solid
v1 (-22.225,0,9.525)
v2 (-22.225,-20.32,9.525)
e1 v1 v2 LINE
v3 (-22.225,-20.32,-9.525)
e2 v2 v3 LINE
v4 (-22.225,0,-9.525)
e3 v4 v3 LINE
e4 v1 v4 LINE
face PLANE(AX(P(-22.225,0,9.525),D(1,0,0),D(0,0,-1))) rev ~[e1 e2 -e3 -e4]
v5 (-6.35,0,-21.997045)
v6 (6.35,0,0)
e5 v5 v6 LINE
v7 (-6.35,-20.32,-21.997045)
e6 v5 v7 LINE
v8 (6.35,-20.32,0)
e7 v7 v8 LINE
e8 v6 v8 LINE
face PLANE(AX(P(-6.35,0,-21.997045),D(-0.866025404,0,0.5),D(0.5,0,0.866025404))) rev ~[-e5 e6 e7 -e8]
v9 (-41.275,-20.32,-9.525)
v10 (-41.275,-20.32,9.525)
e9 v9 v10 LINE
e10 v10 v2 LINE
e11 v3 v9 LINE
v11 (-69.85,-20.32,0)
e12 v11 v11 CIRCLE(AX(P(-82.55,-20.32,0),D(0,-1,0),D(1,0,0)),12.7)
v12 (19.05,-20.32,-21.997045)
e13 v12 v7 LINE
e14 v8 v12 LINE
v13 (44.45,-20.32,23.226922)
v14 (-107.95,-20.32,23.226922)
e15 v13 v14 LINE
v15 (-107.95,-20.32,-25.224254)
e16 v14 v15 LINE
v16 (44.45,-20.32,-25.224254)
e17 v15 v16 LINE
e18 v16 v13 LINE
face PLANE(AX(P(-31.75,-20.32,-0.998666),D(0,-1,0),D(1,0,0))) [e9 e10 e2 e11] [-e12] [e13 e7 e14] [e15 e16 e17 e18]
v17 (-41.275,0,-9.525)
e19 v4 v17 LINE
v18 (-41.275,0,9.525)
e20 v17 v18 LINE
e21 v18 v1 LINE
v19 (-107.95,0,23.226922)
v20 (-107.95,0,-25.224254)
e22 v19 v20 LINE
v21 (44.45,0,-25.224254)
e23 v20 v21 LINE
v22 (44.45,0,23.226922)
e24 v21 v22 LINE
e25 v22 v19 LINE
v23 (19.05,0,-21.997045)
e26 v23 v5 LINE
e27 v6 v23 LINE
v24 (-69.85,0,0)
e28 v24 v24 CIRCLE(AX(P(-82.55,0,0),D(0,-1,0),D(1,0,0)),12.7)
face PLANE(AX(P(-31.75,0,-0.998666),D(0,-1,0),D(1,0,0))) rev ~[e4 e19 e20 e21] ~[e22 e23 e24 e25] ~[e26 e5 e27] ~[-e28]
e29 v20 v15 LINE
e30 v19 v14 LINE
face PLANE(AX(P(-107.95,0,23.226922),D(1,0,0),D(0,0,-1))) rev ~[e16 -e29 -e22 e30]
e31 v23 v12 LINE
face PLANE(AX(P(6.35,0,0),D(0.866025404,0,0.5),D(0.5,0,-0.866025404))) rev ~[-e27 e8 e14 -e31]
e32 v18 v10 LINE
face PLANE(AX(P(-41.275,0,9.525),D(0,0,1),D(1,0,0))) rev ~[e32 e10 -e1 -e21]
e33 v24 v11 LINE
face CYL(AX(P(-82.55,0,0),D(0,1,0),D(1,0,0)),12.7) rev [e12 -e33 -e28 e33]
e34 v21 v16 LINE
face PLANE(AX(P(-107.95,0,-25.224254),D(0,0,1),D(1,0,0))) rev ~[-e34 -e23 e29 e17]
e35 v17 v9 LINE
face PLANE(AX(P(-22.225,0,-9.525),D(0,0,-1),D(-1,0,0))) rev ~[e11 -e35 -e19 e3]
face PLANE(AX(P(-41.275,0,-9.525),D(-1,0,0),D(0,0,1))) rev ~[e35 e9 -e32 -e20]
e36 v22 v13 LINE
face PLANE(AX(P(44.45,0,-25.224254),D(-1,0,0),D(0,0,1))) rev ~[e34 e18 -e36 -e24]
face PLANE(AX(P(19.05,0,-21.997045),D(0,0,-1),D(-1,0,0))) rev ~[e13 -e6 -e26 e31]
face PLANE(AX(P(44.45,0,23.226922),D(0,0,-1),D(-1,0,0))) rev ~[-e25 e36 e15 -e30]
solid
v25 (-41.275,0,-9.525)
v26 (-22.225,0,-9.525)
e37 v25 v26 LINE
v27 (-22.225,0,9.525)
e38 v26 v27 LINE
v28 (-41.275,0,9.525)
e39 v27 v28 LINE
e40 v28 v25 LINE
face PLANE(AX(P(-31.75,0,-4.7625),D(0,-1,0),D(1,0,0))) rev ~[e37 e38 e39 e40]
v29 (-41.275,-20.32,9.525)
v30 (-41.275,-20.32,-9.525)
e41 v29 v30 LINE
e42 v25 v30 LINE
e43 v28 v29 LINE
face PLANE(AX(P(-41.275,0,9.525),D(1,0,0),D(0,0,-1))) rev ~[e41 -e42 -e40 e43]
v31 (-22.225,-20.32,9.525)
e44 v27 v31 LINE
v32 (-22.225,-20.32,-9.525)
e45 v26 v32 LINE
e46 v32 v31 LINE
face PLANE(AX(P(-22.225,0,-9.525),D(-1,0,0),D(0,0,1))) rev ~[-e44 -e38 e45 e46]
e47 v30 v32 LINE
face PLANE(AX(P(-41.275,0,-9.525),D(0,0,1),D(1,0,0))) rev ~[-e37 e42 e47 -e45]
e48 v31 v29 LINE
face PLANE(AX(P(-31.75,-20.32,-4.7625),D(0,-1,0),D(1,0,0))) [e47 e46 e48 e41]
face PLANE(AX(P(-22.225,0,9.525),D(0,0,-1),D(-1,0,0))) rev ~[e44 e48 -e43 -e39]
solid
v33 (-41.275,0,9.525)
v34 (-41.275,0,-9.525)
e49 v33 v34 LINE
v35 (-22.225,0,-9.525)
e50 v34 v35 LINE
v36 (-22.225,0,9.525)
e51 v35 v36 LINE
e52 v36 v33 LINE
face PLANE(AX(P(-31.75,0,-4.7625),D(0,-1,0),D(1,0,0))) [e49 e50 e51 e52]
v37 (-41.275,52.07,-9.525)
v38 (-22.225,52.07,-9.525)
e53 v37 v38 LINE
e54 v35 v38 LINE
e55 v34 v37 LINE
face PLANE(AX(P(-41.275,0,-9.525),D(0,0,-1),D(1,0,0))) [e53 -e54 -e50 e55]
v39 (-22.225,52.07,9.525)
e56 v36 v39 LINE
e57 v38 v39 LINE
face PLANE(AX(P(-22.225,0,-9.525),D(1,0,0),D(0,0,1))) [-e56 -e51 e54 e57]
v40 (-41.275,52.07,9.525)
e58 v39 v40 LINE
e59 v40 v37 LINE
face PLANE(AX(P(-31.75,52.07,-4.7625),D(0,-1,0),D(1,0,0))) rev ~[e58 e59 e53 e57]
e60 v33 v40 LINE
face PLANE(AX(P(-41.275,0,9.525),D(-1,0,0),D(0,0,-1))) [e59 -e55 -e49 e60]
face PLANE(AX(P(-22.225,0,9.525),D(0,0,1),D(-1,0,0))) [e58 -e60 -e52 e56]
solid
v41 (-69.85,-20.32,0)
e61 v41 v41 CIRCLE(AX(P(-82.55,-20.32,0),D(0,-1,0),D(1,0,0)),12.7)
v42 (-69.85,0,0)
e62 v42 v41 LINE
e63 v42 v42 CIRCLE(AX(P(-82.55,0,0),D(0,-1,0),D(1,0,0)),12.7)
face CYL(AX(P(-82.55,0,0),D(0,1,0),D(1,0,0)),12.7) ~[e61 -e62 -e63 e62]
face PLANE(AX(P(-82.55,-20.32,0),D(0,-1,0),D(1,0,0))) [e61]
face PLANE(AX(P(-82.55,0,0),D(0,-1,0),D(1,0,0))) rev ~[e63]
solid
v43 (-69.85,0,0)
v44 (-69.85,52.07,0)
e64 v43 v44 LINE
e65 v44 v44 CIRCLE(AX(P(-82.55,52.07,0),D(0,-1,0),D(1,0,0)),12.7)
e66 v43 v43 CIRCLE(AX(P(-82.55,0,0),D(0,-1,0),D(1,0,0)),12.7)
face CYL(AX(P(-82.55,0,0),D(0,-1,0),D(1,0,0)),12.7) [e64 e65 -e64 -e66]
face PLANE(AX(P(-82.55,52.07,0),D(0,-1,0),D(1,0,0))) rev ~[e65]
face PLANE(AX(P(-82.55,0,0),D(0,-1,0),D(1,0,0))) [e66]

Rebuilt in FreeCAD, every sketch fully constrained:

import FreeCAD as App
import Part
import Sketcher
from FreeCAD import Vector
Q = App.Units.Quantity


def add_polygon(sketch, points):
    """Adds a closed chain of lines whose ends are joined by coincident constraints."""
    first, n = sketch.GeometryCount, len(points)
    for a, b in zip(points, points[1:] + points[:1]):
        sketch.addGeometry(Part.LineSegment(App.Vector(*a, 0), App.Vector(*b, 0)), False)
    for i in range(n):
        sketch.addConstraint(Sketcher.Constraint("Coincident", first + i, 2, first + (i + 1) % n, 1))

doc = App.newDocument("Part")
params = doc.addObject("Spreadsheet::Sheet", "Params")
for row, (alias, value) in enumerate([
    ("sketch1_diameter", "1 in"),
    ("sketch1_width", "6 in"),
    ("sketch1_width2", "1 in"),
    ("sketch1_length", "1 in"),
    ("sketch1_width3", "0.75 in"),
    ("pad1_length", "0.8 in"),
    ("sketch2_diameter", "1 in"),
    ("pad2_length", "2.05 in"),
    ("sketch3_width", "0.75 in"),
    ("pad3_length", "2.05 in"),
    ("sketch4_diameter", "1 in"),
    ("pad4_length", "0.8 in"),
    ("sketch5_width", "0.75 in"),
    ("pad5_length", "0.8 in"),
], start=1):
    params.set(f"A{row}", alias)
    params.set(f"B{row}", "=" + value)
    params.setAlias(f"B{row}", alias)

body = doc.addObject("PartDesign::Body", "Body")

# Sketch on XZ plane
sketch1 = doc.addObject("Sketcher::SketchObject", "Sketch")
body.addObject(sketch1)
sketch1.AttachmentSupport = (doc.XZ_Plane, [""])
sketch1.MapMode = "FlatFace"
add_polygon(sketch1, [(44, -25), (44, 23), (-108, 23), (-108, -25)])  # lines 0-3
add_polygon(sketch1, [(19, -22), (-6, -22), (6, 0)])  # lines 4-6
sketch1.addGeometry(Part.Circle(Vector(-83, 0, 0), Vector(0, 0, 1), 13), False)  # 7
add_polygon(sketch1, [(-41, 10), (-22, 10), (-22, -10), (-41, -10)])  # lines 8-11
sketch1.addConstraint(Sketcher.Constraint("Vertical", 0))
sketch1.addConstraint(Sketcher.Constraint("Horizontal", 1))
sketch1.addConstraint(Sketcher.Constraint("Vertical", 2))
sketch1.addConstraint(Sketcher.Constraint("Horizontal", 3))
sketch1.addConstraint(Sketcher.Constraint("Horizontal", 4))
sketch1.addConstraint(Sketcher.Constraint("Horizontal", 8))
sketch1.addConstraint(Sketcher.Constraint("Vertical", 9))
sketch1.addConstraint(Sketcher.Constraint("Horizontal", 10))
sketch1.addConstraint(Sketcher.Constraint("Vertical", 11))
sketch1.addConstraint(Sketcher.Constraint("PointOnObject", 7, 3, -1))
sketch1.addConstraint(Sketcher.Constraint("PointOnObject", 5, 2, -1))
sketch1.addConstraint(Sketcher.Constraint("Equal", 10, 9))
sketch1.addConstraint(Sketcher.Constraint("Equal", 5, 6))
sketch1.addConstraint(Sketcher.Constraint("Diameter", 7, Q("1 in")))
sketch1.addConstraint(Sketcher.Constraint("DistanceX", 1, 2, 1, 1, Q("6 in")))
sketch1.addConstraint(Sketcher.Constraint("DistanceX", 4, 2, 4, 1, Q("1 in")))
sketch1.addConstraint(Sketcher.Constraint("Distance", 5, Q("1 in")))
sketch1.addConstraint(Sketcher.Constraint("DistanceX", 7, 3, 0, 2, Q("5 in")))
sketch1.addConstraint(Sketcher.Constraint("DistanceX", 4, 2, 3, 2, Q("2 in")))
sketch1.addConstraint(Sketcher.Constraint("DistanceX", 8, 1, 8, 2, Q("0.75 in")))
sketch1.addConstraint(Sketcher.Constraint("DistanceX", 7, 3, -1, 1, Q("3.25 in")))
sketch1.addConstraint(Sketcher.Constraint("DistanceX", 8, 2, -1, 1, Q("0.875 in")))
sketch1.addConstraint(Sketcher.Constraint("DistanceY", -1, 1, 8, 2, Q("0.375 in")))
sketch1.addConstraint(Sketcher.Constraint("DistanceY", 0, 1, 0, 2, Q("48.451176 mm")))
sketch1.addConstraint(Sketcher.Constraint("DistanceY", 3, 2, 4, 2, Q("3.227208 mm")))
sketch1.setExpression("Constraints[24]", "Params.sketch1_diameter")
sketch1.setExpression("Constraints[25]", "Params.sketch1_width")
sketch1.setExpression("Constraints[26]", "Params.sketch1_width2")
sketch1.setExpression("Constraints[27]", "Params.sketch1_length")
sketch1.setExpression("Constraints[30]", "Params.sketch1_width3")
pad1 = doc.addObject("PartDesign::Pad", "Pad")
body.addObject(pad1)
pad1.Profile = sketch1
pad1.setExpression("Length", "Params.pad1_length")
body2 = doc.addObject("PartDesign::Body", "Body001")

# Sketch on XZ plane
sketch2 = doc.addObject("Sketcher::SketchObject", "Sketch001")
body2.addObject(sketch2)
sketch2.AttachmentSupport = (doc.getObject("XZ_Plane001"), [""])
sketch2.MapMode = "FlatFace"
sketch2.addGeometry(Part.Circle(Vector(-83, 0, 0), Vector(0, 0, 1), 13), False)
sketch2.addConstraint(Sketcher.Constraint("PointOnObject", 0, 3, -1))
sketch2.addConstraint(Sketcher.Constraint("Diameter", 0, Q("1 in")))
sketch2.addConstraint(Sketcher.Constraint("DistanceX", 0, 3, -1, 1, Q("3.25 in")))
sketch2.setExpression("Constraints[1]", "Params.sketch2_diameter")
pad2 = doc.addObject("PartDesign::Pad", "Pad001")
body2.addObject(pad2)
pad2.Profile = sketch2
pad2.setExpression("Length", "Params.pad2_length")
pad2.Reversed = True
body3 = doc.addObject("PartDesign::Body", "Body002")

# Sketch on XZ plane
sketch3 = doc.addObject("Sketcher::SketchObject", "Sketch002")
body3.addObject(sketch3)
sketch3.AttachmentSupport = (doc.getObject("XZ_Plane002"), [""])
sketch3.MapMode = "FlatFace"
add_polygon(sketch3, [(-22, -10), (-22, 10), (-41, 10), (-41, -10)])  # lines 0-3
sketch3.addConstraint(Sketcher.Constraint("Vertical", 0))
sketch3.addConstraint(Sketcher.Constraint("Horizontal", 1))
sketch3.addConstraint(Sketcher.Constraint("Vertical", 2))
sketch3.addConstraint(Sketcher.Constraint("Horizontal", 3))
sketch3.addConstraint(Sketcher.Constraint("Equal", 3, 0))
sketch3.addConstraint(Sketcher.Constraint("DistanceX", 1, 2, 1, 1, Q("0.75 in")))
sketch3.addConstraint(Sketcher.Constraint("DistanceX", 0, 2, -1, 1, Q("0.875 in")))
sketch3.addConstraint(Sketcher.Constraint("DistanceY", -1, 1, 0, 2, Q("0.375 in")))
sketch3.setExpression("Constraints[9]", "Params.sketch3_width")
pad3 = doc.addObject("PartDesign::Pad", "Pad002")
body3.addObject(pad3)
pad3.Profile = sketch3
pad3.setExpression("Length", "Params.pad3_length")
pad3.Reversed = True
body4 = doc.addObject("PartDesign::Body", "Body003")

# Sketch on XZ plane
sketch4 = doc.addObject("Sketcher::SketchObject", "Sketch003")
body4.addObject(sketch4)
sketch4.AttachmentSupport = (doc.getObject("XZ_Plane003"), [""])
sketch4.MapMode = "FlatFace"
sketch4.addGeometry(Part.Circle(Vector(-83, 0, 0), Vector(0, 0, 1), 13), False)
sketch4.addConstraint(Sketcher.Constraint("PointOnObject", 0, 3, -1))
sketch4.addConstraint(Sketcher.Constraint("Diameter", 0, Q("1 in")))
sketch4.addConstraint(Sketcher.Constraint("DistanceX", 0, 3, -1, 1, Q("3.25 in")))
sketch4.setExpression("Constraints[1]", "Params.sketch4_diameter")
pad4 = doc.addObject("PartDesign::Pad", "Pad003")
body4.addObject(pad4)
pad4.Profile = sketch4
pad4.setExpression("Length", "Params.pad4_length")
body5 = doc.addObject("PartDesign::Body", "Body004")

# Sketch on XZ plane
sketch5 = doc.addObject("Sketcher::SketchObject", "Sketch004")
body5.addObject(sketch5)
sketch5.AttachmentSupport = (doc.getObject("XZ_Plane004"), [""])
sketch5.MapMode = "FlatFace"
add_polygon(sketch5, [(-22, -10), (-22, 10), (-41, 10), (-41, -10)])  # lines 0-3
sketch5.addConstraint(Sketcher.Constraint("Vertical", 0))
sketch5.addConstraint(Sketcher.Constraint("Horizontal", 1))
sketch5.addConstraint(Sketcher.Constraint("Vertical", 2))
sketch5.addConstraint(Sketcher.Constraint("Horizontal", 3))
sketch5.addConstraint(Sketcher.Constraint("Equal", 3, 0))
sketch5.addConstraint(Sketcher.Constraint("DistanceX", 1, 2, 1, 1, Q("0.75 in")))
sketch5.addConstraint(Sketcher.Constraint("DistanceX", 0, 2, -1, 1, Q("0.875 in")))
sketch5.addConstraint(Sketcher.Constraint("DistanceY", -1, 1, 0, 2, Q("0.375 in")))
sketch5.setExpression("Constraints[9]", "Params.sketch5_width")
pad5 = doc.addObject("PartDesign::Pad", "Pad004")
body5.addObject(pad5)
pad5.Profile = sketch5
pad5.setExpression("Length", "Params.pad5_length")

doc.recompute()
